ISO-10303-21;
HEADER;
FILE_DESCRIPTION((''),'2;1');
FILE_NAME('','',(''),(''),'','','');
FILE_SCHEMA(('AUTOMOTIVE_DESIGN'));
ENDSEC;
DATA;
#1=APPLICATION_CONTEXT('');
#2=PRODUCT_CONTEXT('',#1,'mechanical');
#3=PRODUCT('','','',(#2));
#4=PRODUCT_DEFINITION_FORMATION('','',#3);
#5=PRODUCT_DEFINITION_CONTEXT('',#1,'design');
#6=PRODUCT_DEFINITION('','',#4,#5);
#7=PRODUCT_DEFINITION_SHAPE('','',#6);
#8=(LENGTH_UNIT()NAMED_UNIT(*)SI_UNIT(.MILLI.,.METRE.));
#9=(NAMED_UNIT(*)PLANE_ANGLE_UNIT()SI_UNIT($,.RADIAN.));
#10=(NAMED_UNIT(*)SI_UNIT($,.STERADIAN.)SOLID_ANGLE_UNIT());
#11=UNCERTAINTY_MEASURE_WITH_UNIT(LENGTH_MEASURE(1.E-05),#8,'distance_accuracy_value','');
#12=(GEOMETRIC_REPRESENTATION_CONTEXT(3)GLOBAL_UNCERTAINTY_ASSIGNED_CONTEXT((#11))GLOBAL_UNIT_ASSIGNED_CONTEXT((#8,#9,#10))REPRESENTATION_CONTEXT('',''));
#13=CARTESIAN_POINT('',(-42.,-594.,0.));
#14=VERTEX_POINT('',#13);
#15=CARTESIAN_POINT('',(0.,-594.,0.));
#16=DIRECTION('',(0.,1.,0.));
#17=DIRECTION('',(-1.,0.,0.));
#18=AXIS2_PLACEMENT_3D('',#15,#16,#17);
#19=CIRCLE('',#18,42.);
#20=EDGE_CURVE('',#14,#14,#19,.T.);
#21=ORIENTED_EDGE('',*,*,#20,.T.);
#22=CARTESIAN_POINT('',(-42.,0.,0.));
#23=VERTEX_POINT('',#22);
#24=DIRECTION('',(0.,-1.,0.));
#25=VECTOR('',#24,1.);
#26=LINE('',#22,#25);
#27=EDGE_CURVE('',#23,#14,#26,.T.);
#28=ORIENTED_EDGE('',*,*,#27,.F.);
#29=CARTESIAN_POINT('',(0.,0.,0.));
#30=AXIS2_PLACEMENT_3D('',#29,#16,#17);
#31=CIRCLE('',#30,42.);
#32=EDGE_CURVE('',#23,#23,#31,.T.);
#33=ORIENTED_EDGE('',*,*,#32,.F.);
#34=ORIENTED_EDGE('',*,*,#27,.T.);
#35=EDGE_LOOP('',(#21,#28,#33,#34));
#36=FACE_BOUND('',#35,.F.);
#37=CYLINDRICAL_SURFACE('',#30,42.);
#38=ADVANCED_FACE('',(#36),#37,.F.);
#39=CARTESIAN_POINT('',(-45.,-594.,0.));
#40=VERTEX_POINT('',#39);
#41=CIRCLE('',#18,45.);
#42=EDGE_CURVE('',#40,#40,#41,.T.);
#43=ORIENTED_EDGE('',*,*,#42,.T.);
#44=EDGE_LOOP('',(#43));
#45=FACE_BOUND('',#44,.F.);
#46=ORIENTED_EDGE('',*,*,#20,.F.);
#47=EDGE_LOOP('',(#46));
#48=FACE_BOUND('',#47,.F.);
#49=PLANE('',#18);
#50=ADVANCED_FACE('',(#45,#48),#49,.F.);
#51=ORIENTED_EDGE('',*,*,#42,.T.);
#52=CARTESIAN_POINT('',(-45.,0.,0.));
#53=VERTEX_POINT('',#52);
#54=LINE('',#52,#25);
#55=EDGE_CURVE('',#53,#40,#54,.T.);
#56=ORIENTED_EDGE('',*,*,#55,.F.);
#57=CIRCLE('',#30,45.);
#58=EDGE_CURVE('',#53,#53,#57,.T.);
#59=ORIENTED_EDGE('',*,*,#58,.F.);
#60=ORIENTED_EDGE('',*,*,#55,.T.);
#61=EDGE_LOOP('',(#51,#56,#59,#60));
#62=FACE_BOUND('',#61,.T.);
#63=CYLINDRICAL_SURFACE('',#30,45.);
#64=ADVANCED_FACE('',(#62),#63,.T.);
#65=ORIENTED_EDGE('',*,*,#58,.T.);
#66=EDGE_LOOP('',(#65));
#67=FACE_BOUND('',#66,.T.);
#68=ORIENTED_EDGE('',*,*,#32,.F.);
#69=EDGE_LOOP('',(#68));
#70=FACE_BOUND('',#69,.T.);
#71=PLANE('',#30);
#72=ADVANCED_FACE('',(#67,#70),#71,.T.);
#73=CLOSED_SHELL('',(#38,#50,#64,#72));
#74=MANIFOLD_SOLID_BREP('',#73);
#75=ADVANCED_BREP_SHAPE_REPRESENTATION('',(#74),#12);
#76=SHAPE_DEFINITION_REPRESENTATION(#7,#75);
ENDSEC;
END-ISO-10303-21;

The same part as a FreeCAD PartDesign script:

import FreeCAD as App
import Part
import Sketcher
Q = App.Units.Quantity

doc = App.newDocument("Part")
body = doc.addObject("PartDesign::Body", "Body")

# Sketch on XZ plane
sketch1 = doc.addObject("Sketcher::SketchObject", "Sketch")
body.addObject(sketch1)
sketch1.AttachmentSupport = (doc.XZ_Plane, [""])
sketch1.MapMode = "FlatFace"
sketch1.addGeometry([
    Part.Circle(App.Vector(0, 0, 0), App.Vector(0, 0, 1), 45),
    Part.Circle(App.Vector(0, 0, 0), App.Vector(0, 0, 1), 42),
], False)
sketch1.addConstraint([
    Sketcher.Constraint("Coincident", 0, 3, -1, 1),
    Sketcher.Constraint("Coincident", 1, 3, -1, 1),
    Sketcher.Constraint("Diameter", 0, Q("90 mm")),
    Sketcher.Constraint("Diameter", 1, Q("84 mm")),
])
pad1 = doc.addObject("PartDesign::Pad", "Pad")
body.addObject(pad1)
pad1.Profile = sketch1
pad1.Length = 594

doc.recompute()
